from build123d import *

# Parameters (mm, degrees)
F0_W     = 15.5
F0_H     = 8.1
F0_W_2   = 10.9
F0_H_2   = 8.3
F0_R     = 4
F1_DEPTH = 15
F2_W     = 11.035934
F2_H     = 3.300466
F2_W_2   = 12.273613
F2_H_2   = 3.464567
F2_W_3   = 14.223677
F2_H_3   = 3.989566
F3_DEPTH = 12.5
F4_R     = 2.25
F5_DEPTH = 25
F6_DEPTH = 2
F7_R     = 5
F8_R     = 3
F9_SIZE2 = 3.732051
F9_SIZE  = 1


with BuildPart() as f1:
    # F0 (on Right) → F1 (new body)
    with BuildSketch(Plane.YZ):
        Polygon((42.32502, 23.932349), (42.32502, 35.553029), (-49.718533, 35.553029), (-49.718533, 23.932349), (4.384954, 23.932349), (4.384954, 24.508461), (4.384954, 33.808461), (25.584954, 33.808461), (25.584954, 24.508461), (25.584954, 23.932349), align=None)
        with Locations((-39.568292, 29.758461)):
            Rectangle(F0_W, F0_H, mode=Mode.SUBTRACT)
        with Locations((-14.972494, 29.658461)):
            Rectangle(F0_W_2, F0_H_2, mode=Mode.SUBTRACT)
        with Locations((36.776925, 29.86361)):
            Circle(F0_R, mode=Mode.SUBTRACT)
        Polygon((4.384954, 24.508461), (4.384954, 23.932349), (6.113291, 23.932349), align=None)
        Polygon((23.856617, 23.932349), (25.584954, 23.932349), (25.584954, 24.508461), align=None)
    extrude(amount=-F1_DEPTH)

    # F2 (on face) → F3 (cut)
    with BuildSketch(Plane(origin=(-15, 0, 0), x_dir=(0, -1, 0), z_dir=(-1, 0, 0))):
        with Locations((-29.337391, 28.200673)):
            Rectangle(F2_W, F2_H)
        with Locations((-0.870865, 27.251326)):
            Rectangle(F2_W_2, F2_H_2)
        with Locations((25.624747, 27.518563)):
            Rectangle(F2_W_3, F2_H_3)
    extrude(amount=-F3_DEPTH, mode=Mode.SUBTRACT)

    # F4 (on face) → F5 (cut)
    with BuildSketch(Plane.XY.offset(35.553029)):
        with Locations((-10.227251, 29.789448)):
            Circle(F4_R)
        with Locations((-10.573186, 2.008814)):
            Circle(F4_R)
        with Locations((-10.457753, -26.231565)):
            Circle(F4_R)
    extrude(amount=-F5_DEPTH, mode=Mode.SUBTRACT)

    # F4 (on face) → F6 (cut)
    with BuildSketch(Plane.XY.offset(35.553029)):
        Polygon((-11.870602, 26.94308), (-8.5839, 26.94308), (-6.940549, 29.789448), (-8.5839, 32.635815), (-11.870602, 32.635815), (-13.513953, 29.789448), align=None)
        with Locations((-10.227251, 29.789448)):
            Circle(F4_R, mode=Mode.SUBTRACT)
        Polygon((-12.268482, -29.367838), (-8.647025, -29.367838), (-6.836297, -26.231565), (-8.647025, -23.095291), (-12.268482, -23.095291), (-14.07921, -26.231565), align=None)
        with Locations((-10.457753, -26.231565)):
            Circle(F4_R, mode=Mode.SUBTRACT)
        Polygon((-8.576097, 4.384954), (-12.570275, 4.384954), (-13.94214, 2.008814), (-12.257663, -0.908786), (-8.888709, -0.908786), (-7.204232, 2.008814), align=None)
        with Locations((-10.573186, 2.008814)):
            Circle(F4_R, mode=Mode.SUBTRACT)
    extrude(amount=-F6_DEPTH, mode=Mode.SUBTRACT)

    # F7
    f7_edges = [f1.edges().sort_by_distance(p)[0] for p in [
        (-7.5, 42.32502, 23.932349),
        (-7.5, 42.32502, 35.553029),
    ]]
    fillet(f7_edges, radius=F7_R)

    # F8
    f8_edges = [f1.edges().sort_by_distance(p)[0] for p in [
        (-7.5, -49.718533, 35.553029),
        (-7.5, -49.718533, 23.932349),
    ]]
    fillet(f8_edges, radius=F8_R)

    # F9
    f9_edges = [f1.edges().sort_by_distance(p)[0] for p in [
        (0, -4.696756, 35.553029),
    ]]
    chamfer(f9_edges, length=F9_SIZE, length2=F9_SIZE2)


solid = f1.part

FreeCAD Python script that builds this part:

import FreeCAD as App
import Part
import Sketcher

V = App.Vector
Q = App.Units.Quantity


def edges_at(feature, points):
    """Names of the edges that pass closest to the given points."""
    edges = feature.Shape.Edges
    near = lambda p: min(range(len(edges)), key=lambda i: edges[i].distToShape(Part.Vertex(*p))[0])
    return sorted({f"Edge{near(p) + 1}" for p in points})

doc = App.newDocument("Part")
body = doc.addObject("PartDesign::Body", "Body")

sketch1 = body.newObject("Sketcher::SketchObject", "Sketch")
sketch1.AttachmentSupport = (doc.getObject("YZ_Plane"), [""])
sketch1.MapMode = "FlatFace"
sketch1.addGeometry(Part.LineSegment(V(42.32502, 23.932349, 0), V(42.32502, 35.553029, 0)), False)
sketch1.addGeometry(Part.LineSegment(V(42.32502, 35.553029, 0), V(-49.718533, 35.553029, 0)), False)
sketch1.addGeometry(Part.LineSegment(V(-49.718533, 35.553029, 0), V(-49.718533, 23.932349, 0)), False)
sketch1.addGeometry(Part.LineSegment(V(-49.718533, 23.932349, 0), V(6.113291, 23.932349, 0)), False)
sketch1.addGeometry(Part.LineSegment(V(6.113291, 23.932349, 0), V(4.384954, 24.508461, 0)), False)
sketch1.addGeometry(Part.LineSegment(V(4.384954, 24.508461, 0), V(4.384954, 33.808461, 0)), False)
sketch1.addGeometry(Part.LineSegment(V(4.384954, 33.808461, 0), V(25.584954, 33.808461, 0)), False)
sketch1.addGeometry(Part.LineSegment(V(25.584954, 33.808461, 0), V(25.584954, 24.508461, 0)), False)
sketch1.addGeometry(Part.LineSegment(V(25.584954, 24.508461, 0), V(23.856617, 23.932349, 0)), False)
sketch1.addGeometry(Part.LineSegment(V(23.856617, 23.932349, 0), V(42.32502, 23.932349, 0)), False)
sketch1.addGeometry(Part.LineSegment(V(-9.522494, 25.508461, 0), V(-20.422494, 25.508461, 0)), False)
sketch1.addGeometry(Part.LineSegment(V(-20.422494, 25.508461, 0), V(-20.422494, 33.808461, 0)), False)
sketch1.addGeometry(Part.LineSegment(V(-20.422494, 33.808461, 0), V(-9.522494, 33.808461, 0)), False)
sketch1.addGeometry(Part.LineSegment(V(-9.522494, 33.808461, 0), V(-9.522494, 25.508461, 0)), False)
sketch1.addGeometry(Part.LineSegment(V(-31.818292, 25.708461, 0), V(-47.318292, 25.708461, 0)), False)
sketch1.addGeometry(Part.LineSegment(V(-47.318292, 25.708461, 0), V(-47.318292, 33.808461, 0)), False)
sketch1.addGeometry(Part.LineSegment(V(-47.318292, 33.808461, 0), V(-31.818292, 33.808461, 0)), False)
sketch1.addGeometry(Part.LineSegment(V(-31.818292, 33.808461, 0), V(-31.818292, 25.708461, 0)), False)
sketch1.addGeometry(Part.Circle(V(36.776925, 29.86361, 0), V(0, 0, 1), 4), False)
sketch1.addConstraint(Sketcher.Constraint("Coincident", 0, 2, 1, 1))
sketch1.addConstraint(Sketcher.Constraint("Coincident", 1, 2, 2, 1))
sketch1.addConstraint(Sketcher.Constraint("Coincident", 2, 2, 3, 1))
sketch1.addConstraint(Sketcher.Constraint("Coincident", 3, 2, 4, 1))
sketch1.addConstraint(Sketcher.Constraint("Coincident", 4, 2, 5, 1))
sketch1.addConstraint(Sketcher.Constraint("Coincident", 5, 2, 6, 1))
sketch1.addConstraint(Sketcher.Constraint("Coincident", 6, 2, 7, 1))
sketch1.addConstraint(Sketcher.Constraint("Coincident", 7, 2, 8, 1))
sketch1.addConstraint(Sketcher.Constraint("Coincident", 8, 2, 9, 1))
sketch1.addConstraint(Sketcher.Constraint("Coincident", 9, 2, 0, 1))
sketch1.addConstraint(Sketcher.Constraint("Coincident", 10, 2, 11, 1))
sketch1.addConstraint(Sketcher.Constraint("Coincident", 11, 2, 12, 1))
sketch1.addConstraint(Sketcher.Constraint("Coincident", 12, 2, 13, 1))
sketch1.addConstraint(Sketcher.Constraint("Coincident", 13, 2, 10, 1))
sketch1.addConstraint(Sketcher.Constraint("Coincident", 14, 2, 15, 1))
sketch1.addConstraint(Sketcher.Constraint("Coincident", 15, 2, 16, 1))
sketch1.addConstraint(Sketcher.Constraint("Coincident", 16, 2, 17, 1))
sketch1.addConstraint(Sketcher.Constraint("Coincident", 17, 2, 14, 1))
sketch1.addConstraint(Sketcher.Constraint("Vertical", 0))
sketch1.addConstraint(Sketcher.Constraint("Horizontal", 1))
sketch1.addConstraint(Sketcher.Constraint("Vertical", 2))
sketch1.addConstraint(Sketcher.Constraint("Horizontal", 3))
sketch1.addConstraint(Sketcher.Constraint("Vertical", 5))
sketch1.addConstraint(Sketcher.Constraint("Horizontal", 6))
sketch1.addConstraint(Sketcher.Constraint("Vertical", 7))
sketch1.addConstraint(Sketcher.Constraint("Horizontal", 9))
sketch1.addConstraint(Sketcher.Constraint("Horizontal", 10))
sketch1.addConstraint(Sketcher.Constraint("Vertical", 11))
sketch1.addConstraint(Sketcher.Constraint("Horizontal", 12))
sketch1.addConstraint(Sketcher.Constraint("Vertical", 13))
sketch1.addConstraint(Sketcher.Constraint("Horizontal", 14))
sketch1.addConstraint(Sketcher.Constraint("Vertical", 15))
sketch1.addConstraint(Sketcher.Constraint("Horizontal", 16))
sketch1.addConstraint(Sketcher.Constraint("Vertical", 17))
sketch1.addConstraint(Sketcher.Constraint("Horizontal", 4, 2, 7, 2))
sketch1.addConstraint(Sketcher.Constraint("Horizontal", 3, 2, 8, 2))
sketch1.addConstraint(Sketcher.Constraint("Horizontal", 6, 2, 11, 2))
sketch1.addConstraint(Sketcher.Constraint("Horizontal", 12, 2, 15, 2))
sketch1.addConstraint(Sketcher.Constraint("Equal", 4, 8))
sketch1.addConstraint(Sketcher.Constraint("Diameter", 18, Q("8 mm")))
sketch1.addConstraint(Sketcher.Constraint("DistanceX", 6, 1, 6, 2, Q("21.2 mm")))
sketch1.addConstraint(Sketcher.Constraint("DistanceX", 10, 2, 10, 1, Q("10.9 mm")))
sketch1.addConstraint(Sketcher.Constraint("DistanceX", 14, 2, 14, 1, Q("15.5 mm")))
sketch1.addConstraint(Sketcher.Constraint("DistanceY", 5, 1, 5, 2, Q("9.3 mm")))
sketch1.addConstraint(Sketcher.Constraint("DistanceY", 11, 1, 11, 2, Q("8.3 mm")))
sketch1.addConstraint(Sketcher.Constraint("DistanceY", 15, 1, 15, 2, Q("8.1 mm")))
sketch1.addConstraint(Sketcher.Constraint("DistanceY", 0, 1, 0, 2, Q("11.62068 mm")))
sketch1.addConstraint(Sketcher.Constraint("DistanceX", 1, 2, 1, 1, Q("92.043553 mm")))
sketch1.addConstraint(Sketcher.Constraint("DistanceX", 3, 1, 3, 2, Q("55.831824 mm")))
sketch1.addConstraint(Sketcher.Constraint("DistanceX", 9, 1, 9, 2, Q("18.468403 mm")))
sketch1.addConstraint(Sketcher.Constraint("DistanceY", -1, 1, 18, 3, Q("29.86361 mm")))
sketch1.addConstraint(Sketcher.Constraint("DistanceX", -1, 1, 0, 2, Q("42.32502 mm")))
sketch1.addConstraint(Sketcher.Constraint("DistanceY", -1, 1, 0, 2, Q("35.553029 mm")))
sketch1.addConstraint(Sketcher.Constraint("DistanceY", -1, 1, 4, 2, Q("24.508461 mm")))
sketch1.addConstraint(Sketcher.Constraint("DistanceX", 16, 2, -1, 1, Q("31.818292 mm")))
sketch1.addConstraint(Sketcher.Constraint("DistanceX", 1, 2, 18, 3, Q("86.495458 mm")))
sketch1.addConstraint(Sketcher.Constraint("DistanceX", 10, 2, 4, 2, Q("24.807448 mm")))
pad1 = body.newObject("PartDesign::Pad", "Pad")
pad1.Profile = sketch1
pad1.Length = 15
pad1.Reversed = True

sketch2 = body.newObject("Sketcher::SketchObject", "Sketch001")
sketch2.AttachmentSupport = (doc.getObject("YZ_Plane"), [""])
sketch2.MapMode = "FlatFace"
sketch2.AttachmentOffset = App.Placement(V(0, 0, -15), App.Rotation())
sketch2.addGeometry(Part.LineSegment(V(34.855358, 29.850906, 0), V(34.855358, 26.55044, 0)), False)
sketch2.addGeometry(Part.LineSegment(V(34.855358, 26.55044, 0), V(23.819424, 26.55044, 0)), False)
sketch2.addGeometry(Part.LineSegment(V(23.819424, 26.55044, 0), V(23.819424, 29.850906, 0)), False)
sketch2.addGeometry(Part.LineSegment(V(23.819424, 29.850906, 0), V(34.855358, 29.850906, 0)), False)
sketch2.addGeometry(Part.LineSegment(V(7.007671, 28.98361, 0), V(7.007671, 25.519043, 0)), False)
sketch2.addGeometry(Part.LineSegment(V(7.007671, 25.519043, 0), V(-5.265942, 25.519043, 0)), False)
sketch2.addGeometry(Part.LineSegment(V(-5.265942, 25.519043, 0), V(-5.265942, 28.98361, 0)), False)
sketch2.addGeometry(Part.LineSegment(V(-5.265942, 28.98361, 0), V(7.007671, 28.98361, 0)), False)
sketch2.addGeometry(Part.LineSegment(V(-18.512909, 29.513346, 0), V(-18.512909, 25.52378, 0)), False)
sketch2.addGeometry(Part.LineSegment(V(-18.512909, 25.52378, 0), V(-32.736585, 25.52378, 0)), False)
sketch2.addGeometry(Part.LineSegment(V(-32.736585, 25.52378, 0), V(-32.736585, 29.513346, 0)), False)
sketch2.addGeometry(Part.LineSegment(V(-32.736585, 29.513346, 0), V(-18.512909, 29.513346, 0)), False)
sketch2.addConstraint(Sketcher.Constraint("Coincident", 0, 2, 1, 1))
sketch2.addConstraint(Sketcher.Constraint("Coincident", 1, 2, 2, 1))
sketch2.addConstraint(Sketcher.Constraint("Coincident", 2, 2, 3, 1))
sketch2.addConstraint(Sketcher.Constraint("Coincident", 3, 2, 0, 1))
sketch2.addConstraint(Sketcher.Constraint("Coincident", 4, 2, 5, 1))
sketch2.addConstraint(Sketcher.Constraint("Coincident", 5, 2, 6, 1))
sketch2.addConstraint(Sketcher.Constraint("Coincident", 6, 2, 7, 1))
sketch2.addConstraint(Sketcher.Constraint("Coincident", 7, 2, 4, 1))
sketch2.addConstraint(Sketcher.Constraint("Coincident", 8, 2, 9, 1))
sketch2.addConstraint(Sketcher.Constraint("Coincident", 9, 2, 10, 1))
sketch2.addConstraint(Sketcher.Constraint("Coincident", 10, 2, 11, 1))
sketch2.addConstraint(Sketcher.Constraint("Coincident", 11, 2, 8, 1))
sketch2.addConstraint(Sketcher.Constraint("Vertical", 0))
sketch2.addConstraint(Sketcher.Constraint("Horizontal", 1))
sketch2.addConstraint(Sketcher.Constraint("Vertical", 2))
sketch2.addConstraint(Sketcher.Constraint("Horizontal", 3))
sketch2.addConstraint(Sketcher.Constraint("Vertical", 4))
sketch2.addConstraint(Sketcher.Constraint("Horizontal", 5))
sketch2.addConstraint(Sketcher.Constraint("Vertical", 6))
sketch2.addConstraint(Sketcher.Constraint("Horizontal", 7))
sketch2.addConstraint(Sketcher.Constraint("Vertical", 8))
sketch2.addConstraint(Sketcher.Constraint("Horizontal", 9))
sketch2.addConstraint(Sketcher.Constraint("Vertical", 10))
sketch2.addConstraint(Sketcher.Constraint("Horizontal", 11))
sketch2.addConstraint(Sketcher.Constraint("DistanceX", 5, 2, 0, 2, Q("40.1213 mm")))
sketch2.addConstraint(Sketcher.Constraint("DistanceX", 1, 2, 1, 1, Q("11.035934 mm")))
sketch2.addConstraint(Sketcher.Constraint("DistanceX", 5, 2, 5, 1, Q("12.273613 mm")))
sketch2.addConstraint(Sketcher.Constraint("DistanceX", 9, 2, 9, 1, Q("14.223677 mm")))
sketch2.addConstraint(Sketcher.Constraint("DistanceY", 0, 2, 0, 1, Q("3.300466 mm")))
sketch2.addConstraint(Sketcher.Constraint("DistanceY", 4, 2, 4, 1, Q("3.464567 mm")))
sketch2.addConstraint(Sketcher.Constraint("DistanceY", 8, 2, 8, 1, Q("3.989566 mm")))
sketch2.addConstraint(Sketcher.Constraint("DistanceX", -1, 1, 0, 2, Q("34.855358 mm")))
sketch2.addConstraint(Sketcher.Constraint("DistanceY", -1, 1, 0, 2, Q("26.55044 mm")))
sketch2.addConstraint(Sketcher.Constraint("DistanceY", -1, 1, 6, 2, Q("28.98361 mm")))
sketch2.addConstraint(Sketcher.Constraint("DistanceX", 8, 2, -1, 1, Q("18.512909 mm")))
sketch2.addConstraint(Sketcher.Constraint("DistanceY", -1, 1, 8, 2, Q("25.52378 mm")))
pocket1 = body.newObject("PartDesign::Pocket", "Pocket")
pocket1.Profile = sketch2
pocket1.Length = 12.5
pocket1.Reversed = True

sketch3 = body.newObject("Sketcher::SketchObject", "Sketch002")
sketch3.AttachmentSupport = (doc.getObject("XY_Plane"), [""])
sketch3.MapMode = "FlatFace"
sketch3.AttachmentOffset = App.Placement(V(0, 0, 35.553029), App.Rotation())
sketch3.addGeometry(Part.Circle(V(-10.227251, 29.789448, 0), V(0, 0, 1), 2.25), False)
sketch3.addGeometry(Part.Circle(V(-10.573186, 2.008814, 0), V(0, 0, 1), 2.25), False)
sketch3.addGeometry(Part.Circle(V(-10.457753, -26.231565, 0), V(0, 0, 1), 2.25), False)
sketch3.addConstraint(Sketcher.Constraint("Equal", 0, 1))
sketch3.addConstraint(Sketcher.Constraint("Equal", 1, 2))
sketch3.addConstraint(Sketcher.Constraint("Diameter", 0, Q("4.5 mm")))
sketch3.addConstraint(Sketcher.Constraint("DistanceX", 2, 3, 0, 3, Q("0.230502 mm")))
sketch3.addConstraint(Sketcher.Constraint("DistanceX", 0, 3, -1, 1, Q("10.227251 mm")))
sketch3.addConstraint(Sketcher.Constraint("DistanceY", -1, 1, 0, 3, Q("29.789448 mm")))
sketch3.addConstraint(Sketcher.Constraint("DistanceY", 2, 3, 1, 3, Q("28.240379 mm")))
sketch3.addConstraint(Sketcher.Constraint("DistanceX", 1, 3, -1, 1, Q("10.573186 mm")))
sketch3.addConstraint(Sketcher.Constraint("DistanceY", -1, 1, 1, 3, Q("2.008814 mm")))
pocket2 = body.newObject("PartDesign::Pocket", "Pocket001")
pocket2.Profile = sketch3
pocket2.Length = 25

sketch4 = body.newObject("Sketcher::SketchObject", "Sketch003")
sketch4.AttachmentSupport = (doc.getObject("XY_Plane"), [""])
sketch4.MapMode = "FlatFace"
sketch4.AttachmentOffset = App.Placement(V(0, 0, 35.553029), App.Rotation())
sketch4.addGeometry(Part.LineSegment(V(-11.870602, 26.94308, 0), V(-8.5839, 26.94308, 0)), False)
sketch4.addGeometry(Part.LineSegment(V(-8.5839, 26.94308, 0), V(-6.940549, 29.789448, 0)), False)
sketch4.addGeometry(Part.LineSegment(V(-6.940549, 29.789448, 0), V(-8.5839, 32.635815, 0)), False)
sketch4.addGeometry(Part.LineSegment(V(-8.5839, 32.635815, 0), V(-11.870602, 32.635815, 0)), False)
sketch4.addGeometry(Part.LineSegment(V(-11.870602, 32.635815, 0), V(-13.513953, 29.789448, 0)), False)
sketch4.addGeometry(Part.LineSegment(V(-13.513953, 29.789448, 0), V(-11.870602, 26.94308, 0)), False)
sketch4.addGeometry(Part.Circle(V(-10.227251, 29.789448, 0), V(0, 0, 1), 2.25), False)
sketch4.addGeometry(Part.LineSegment(V(-12.268482, -29.367838, 0), V(-8.647025, -29.367838, 0)), False)
sketch4.addGeometry(Part.LineSegment(V(-8.647025, -29.367838, 0), V(-6.836297, -26.231565, 0)), False)
sketch4.addGeometry(Part.LineSegment(V(-6.836297, -26.231565, 0), V(-8.647025, -23.095291, 0)), False)
sketch4.addGeometry(Part.LineSegment(V(-8.647025, -23.095291, 0), V(-12.268482, -23.095291, 0)), False)
sketch4.addGeometry(Part.LineSegment(V(-12.268482, -23.095291, 0), V(-14.07921, -26.231565, 0)), False)
sketch4.addGeometry(Part.LineSegment(V(-14.07921, -26.231565, 0), V(-12.268482, -29.367838, 0)), False)
sketch4.addGeometry(Part.Circle(V(-10.457753, -26.231565, 0), V(0, 0, 1), 2.25), False)
sketch4.addGeometry(Part.LineSegment(V(-8.576097, 4.384954, 0), V(-12.570275, 4.384954, 0)), False)
sketch4.addGeometry(Part.LineSegment(V(-12.570275, 4.384954, 0), V(-13.94214, 2.008814, 0)), False)
sketch4.addGeometry(Part.LineSegment(V(-13.94214, 2.008814, 0), V(-12.257663, -0.908786, 0)), False)
sketch4.addGeometry(Part.LineSegment(V(-12.257663, -0.908786, 0), V(-8.888709, -0.908786, 0)), False)
sketch4.addGeometry(Part.LineSegment(V(-8.888709, -0.908786, 0), V(-7.204232, 2.008814, 0)), False)
sketch4.addGeometry(Part.LineSegment(V(-7.204232, 2.008814, 0), V(-8.576097, 4.384954, 0)), False)
sketch4.addGeometry(Part.Circle(V(-10.573186, 2.008814, 0), V(0, 0, 1), 2.25), False)
sketch4.addConstraint(Sketcher.Constraint("Coincident", 0, 2, 1, 1))
sketch4.addConstraint(Sketcher.Constraint("Coincident", 1, 2, 2, 1))
sketch4.addConstraint(Sketcher.Constraint("Coincident", 2, 2, 3, 1))
sketch4.addConstraint(Sketcher.Constraint("Coincident", 3, 2, 4, 1))
sketch4.addConstraint(Sketcher.Constraint("Coincident", 4, 2, 5, 1))
sketch4.addConstraint(Sketcher.Constraint("Coincident", 5, 2, 0, 1))
sketch4.addConstraint(Sketcher.Constraint("Coincident", 7, 2, 8, 1))
sketch4.addConstraint(Sketcher.Constraint("Coincident", 8, 2, 9, 1))
sketch4.addConstraint(Sketcher.Constraint("Coincident", 9, 2, 10, 1))
sketch4.addConstraint(Sketcher.Constraint("Coincident", 10, 2, 11, 1))
sketch4.addConstraint(Sketcher.Constraint("Coincident", 11, 2, 12, 1))
sketch4.addConstraint(Sketcher.Constraint("Coincident", 12, 2, 7, 1))
sketch4.addConstraint(Sketcher.Constraint("Coincident", 14, 2, 15, 1))
sketch4.addConstraint(Sketcher.Constraint("Coincident", 15, 2, 16, 1))
sketch4.addConstraint(Sketcher.Constraint("Coincident", 16, 2, 17, 1))
sketch4.addConstraint(Sketcher.Constraint("Coincident", 17, 2, 18, 1))
sketch4.addConstraint(Sketcher.Constraint("Coincident", 18, 2, 19, 1))
sketch4.addConstraint(Sketcher.Constraint("Coincident", 19, 2, 14, 1))
sketch4.addConstraint(Sketcher.Constraint("Horizontal", 0))
sketch4.addConstraint(Sketcher.Constraint("Horizontal", 3))
sketch4.addConstraint(Sketcher.Constraint("Horizontal", 7))
sketch4.addConstraint(Sketcher.Constraint("Horizontal", 10))
sketch4.addConstraint(Sketcher.Constraint("Horizontal", 14))
sketch4.addConstraint(Sketcher.Constraint("Horizontal", 17))
sketch4.addConstraint(Sketcher.Constraint("Equal", 6, 13))
sketch4.addConstraint(Sketcher.Constraint("Equal", 13, 20))
sketch4.addConstraint(Sketcher.Constraint("Parallel", 1, 4))
sketch4.addConstraint(Sketcher.Constraint("Parallel", 2, 5))
sketch4.addConstraint(Sketcher.Constraint("Parallel", 4, 8))
sketch4.addConstraint(Sketcher.Constraint("Parallel", 5, 9))
sketch4.addConstraint(Sketcher.Constraint("Parallel", 8, 11))
sketch4.addConstraint(Sketcher.Constraint("Parallel", 9, 12))
sketch4.addConstraint(Sketcher.Constraint("Parallel", 11, 15))
sketch4.addConstraint(Sketcher.Constraint("Parallel", 12, 16))
sketch4.addConstraint(Sketcher.Constraint("Parallel", 15, 18))
sketch4.addConstraint(Sketcher.Constraint("Parallel", 16, 19))
sketch4.addConstraint(Sketcher.Constraint("Horizontal", 6, 3, 1, 2))
sketch4.addConstraint(Sketcher.Constraint("Horizontal", 1, 2, 4, 2))
sketch4.addConstraint(Sketcher.Constraint("Horizontal", 13, 3, 8, 2))
sketch4.addConstraint(Sketcher.Constraint("Horizontal", 8, 2, 11, 2))
sketch4.addConstraint(Sketcher.Constraint("Horizontal", 20, 3, 15, 2))
sketch4.addConstraint(Sketcher.Constraint("Horizontal", 15, 2, 18, 2))
sketch4.addConstraint(Sketcher.Constraint("Vertical", 0, 2, 2, 2))
sketch4.addConstraint(Sketcher.Constraint("Vertical", 3, 2, 5, 2))
sketch4.addConstraint(Sketcher.Constraint("Vertical", 7, 2, 9, 2))
sketch4.addConstraint(Sketcher.Constraint("Diameter", 6, Q("4.5 mm")))
sketch4.addConstraint(Sketcher.Constraint("Angle", 1, Q("60.000005 deg")))
sketch4.addConstraint(Sketcher.Constraint("DistanceX", 0, 1, 0, 2, Q("3.286702 mm")))
sketch4.addConstraint(Sketcher.Constraint("DistanceY", 20, 3, 2, 2, Q("30.627001 mm")))
sketch4.addConstraint(Sketcher.Constraint("Distance", 2, Q("3.286702 mm")))
sketch4.addConstraint(Sketcher.Constraint("DistanceX", 0, 2, -1, 1, Q("8.5839 mm")))
sketch4.addConstraint(Sketcher.Constraint("DistanceX", 13, 3, 6, 3, Q("0.230502 mm")))
sketch4.addConstraint(Sketcher.Constraint("DistanceX", 4, 2, 6, 3, Q("3.286702 mm")))
sketch4.addConstraint(Sketcher.Constraint("DistanceY", 16, 2, 15, 2, Q("2.9176 mm")))
sketch4.addConstraint(Sketcher.Constraint("Distance", 15, Q("2.74373 mm")))
sketch4.addConstraint(Sketcher.Constraint("DistanceX", 7, 1, 7, 2, Q("3.621457 mm")))
sketch4.addConstraint(Sketcher.Constraint("DistanceX", 14, 2, 14, 1, Q("3.994178 mm")))
sketch4.addConstraint(Sketcher.Constraint("DistanceY", -1, 1, 6, 3, Q("29.789448 mm")))
sketch4.addConstraint(Sketcher.Constraint("DistanceY", 9, 2, -1, 1, Q("23.095291 mm")))
sketch4.addConstraint(Sketcher.Constraint("DistanceX", 11, 2, -1, 1, Q("14.07921 mm")))
sketch4.addConstraint(Sketcher.Constraint("DistanceX", 15, 2, -1, 1, Q("13.94214 mm")))
sketch4.addConstraint(Sketcher.Constraint("DistanceY", 13, 3, 20, 3, Q("28.240379 mm")))
sketch4.addConstraint(Sketcher.Constraint("DistanceX", 20, 3, 7, 2, Q("1.926161 mm")))
pocket3 = body.newObject("PartDesign::Pocket", "Pocket002")
pocket3.Profile = sketch4
pocket3.Length = 2
doc.recompute()

fillet = body.newObject("PartDesign::Fillet", "Fillet")
fillet.Base = (pocket3, edges_at(pocket3, [(-7.5, 42.325, 23.932), (-7.5, 42.325, 35.553)]))
fillet.Radius = 5
doc.recompute()

fillet2 = body.newObject("PartDesign::Fillet", "Fillet001")
fillet2.Base = (fillet, edges_at(fillet, [(-7.5, -49.719, 35.553), (-7.5, -49.719, 23.932)]))
fillet2.Radius = 3
doc.recompute()

chamfer = body.newObject("PartDesign::Chamfer", "Chamfer")
chamfer.Base = (fillet2, edges_at(fillet2, [(0, -4.697, 35.553)]))
chamfer.ChamferType = "Two distances"
chamfer.Size = 1
chamfer.Size2 = 3.732051

doc.recompute()
